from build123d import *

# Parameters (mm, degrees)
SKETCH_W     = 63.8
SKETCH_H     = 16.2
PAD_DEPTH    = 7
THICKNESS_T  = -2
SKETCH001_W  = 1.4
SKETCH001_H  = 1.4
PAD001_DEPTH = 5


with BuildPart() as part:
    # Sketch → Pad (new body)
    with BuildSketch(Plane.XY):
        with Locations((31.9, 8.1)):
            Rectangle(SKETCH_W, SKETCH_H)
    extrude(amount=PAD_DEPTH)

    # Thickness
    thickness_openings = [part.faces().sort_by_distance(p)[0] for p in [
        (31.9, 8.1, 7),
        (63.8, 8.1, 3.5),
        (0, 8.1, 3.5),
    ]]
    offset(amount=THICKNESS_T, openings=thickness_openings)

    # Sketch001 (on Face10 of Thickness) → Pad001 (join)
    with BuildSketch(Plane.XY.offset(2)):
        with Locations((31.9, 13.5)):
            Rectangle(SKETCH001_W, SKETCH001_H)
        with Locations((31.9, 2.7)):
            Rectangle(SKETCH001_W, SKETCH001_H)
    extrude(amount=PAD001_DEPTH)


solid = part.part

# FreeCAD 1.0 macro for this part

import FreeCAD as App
import Part
import Sketcher

V = App.Vector


def faces_at(feature, points):
    """Names of the faces that lie closest to the given points."""
    faces = feature.Shape.Faces
    near = lambda p: min(range(len(faces)), key=lambda i: faces[i].distToShape(Part.Vertex(*p))[0])
    return sorted({f"Face{near(p) + 1}" for p in points})


def add_polygon(sketch, points):
    """Adds a closed chain of lines whose ends are joined by coincident constraints."""
    first, n = sketch.GeometryCount, len(points)
    for a, b in zip(points, points[1:] + points[:1]):
        sketch.addGeometry(Part.LineSegment(App.Vector(*a, 0), App.Vector(*b, 0)), False)
    for i in range(n):
        sketch.addConstraint(Sketcher.Constraint("Coincident", first + i, 2, first + (i + 1) % n, 1))

doc = App.newDocument("Part")
body = doc.addObject("PartDesign::Body", "Body")

sketch1 = body.newObject("Sketcher::SketchObject", "Sketch")
sketch1.AttachmentSupport = (doc.getObject("XY_Plane"), [""])
sketch1.MapMode = "FlatFace"
add_polygon(sketch1, [(0, 16), (0, 0), (64, 0), (64, 16)])
sketch1.addConstraint([
    Sketcher.Constraint("Vertical", 0),
    Sketcher.Constraint("Horizontal", 1),
    Sketcher.Constraint("Vertical", 2),
    Sketcher.Constraint("Horizontal", 3),
    Sketcher.Constraint("Coincident", 0, 2, -1, 1),
    Sketcher.Constraint("DistanceX", 1, 1, 1, 2, 63.8),
    Sketcher.Constraint("DistanceY", 0, 2, 0, 1, 16.2),
])
pad1 = body.newObject("PartDesign::Pad", "Pad")
pad1.Profile = sketch1
pad1.Length = 7
doc.recompute()

thickness = body.newObject("PartDesign::Thickness", "Thickness")
thickness.Base = (pad1, faces_at(pad1, [(31.9, 8.1, 7), (63.8, 8.1, 3.5), (0, 8.1, 3.5)]))
thickness.Value = 2
thickness.Reversed = True
thickness.Join = "Arc"

sketch2 = body.newObject("Sketcher::SketchObject", "Sketch001")
sketch2.AttachmentSupport = (doc.getObject("XY_Plane"), [""])
sketch2.MapMode = "FlatFace"
sketch2.AttachmentOffset = App.Placement(V(0, 0, 2), App.Rotation())
add_polygon(sketch2, [(31.2, 14.2), (31.2, 12.8), (32.6, 12.8), (32.6, 14.2)])
add_polygon(sketch2, [(31.2, 3.4), (31.2, 2), (32.6, 2), (32.6, 3.4)])
sketch2.addConstraint([
    Sketcher.Constraint("Vertical", 0),
    Sketcher.Constraint("Horizontal", 1),
    Sketcher.Constraint("Vertical", 2),
    Sketcher.Constraint("Horizontal", 3),
    Sketcher.Constraint("Vertical", 4),
    Sketcher.Constraint("Horizontal", 5),
    Sketcher.Constraint("Vertical", 6),
    Sketcher.Constraint("Horizontal", 7),
    Sketcher.Constraint("Vertical", 3, 2, 4, 2),
    Sketcher.Constraint("Vertical", 2, 2, 5, 2),
    Sketcher.Constraint("Equal", 7, 0),
    Sketcher.Constraint("Equal", 2, 4),
    Sketcher.Constraint("DistanceX", 1, 1, 1, 2, 1.4),
    Sketcher.Constraint("DistanceY", -1, 1, 4, 2, 2.0),
    Sketcher.Constraint("DistanceX", -1, 1, 0, 2, 31.2),
    Sketcher.Constraint("DistanceY", -1, 1, 0, 2, 12.8),
])
pad2 = body.newObject("PartDesign::Pad", "Pad001")
pad2.Profile = sketch2
pad2.Length = 5

doc.recompute()
